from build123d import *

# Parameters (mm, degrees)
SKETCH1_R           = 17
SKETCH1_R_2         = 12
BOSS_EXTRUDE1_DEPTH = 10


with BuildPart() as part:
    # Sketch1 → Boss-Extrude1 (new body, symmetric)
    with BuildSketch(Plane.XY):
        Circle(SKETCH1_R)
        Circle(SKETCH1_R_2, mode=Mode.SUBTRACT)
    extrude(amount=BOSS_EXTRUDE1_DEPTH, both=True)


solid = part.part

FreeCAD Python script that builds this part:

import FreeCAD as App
import Part
import Sketcher
from FreeCAD import Vector
Q = App.Units.Quantity

doc = App.newDocument("Part")
body = doc.addObject("PartDesign::Body", "Body")

# Sketch on XY plane
sketch1 = body.newObject("Sketcher::SketchObject", "Sketch")
sketch1.AttachmentSupport = (doc.getObject("XY_Plane"), [""])
sketch1.MapMode = "FlatFace"
sketch1.addGeometry([
    Part.Circle(Vector(0, 0, 0), Vector(0, 0, 1), 17),
    Part.Circle(Vector(0, 0, 0), Vector(0, 0, 1), 12),
], False)
sketch1.addConstraint([
    Sketcher.Constraint("Coincident", 0, 3, -1, 1),
    Sketcher.Constraint("Coincident", 1, 3, -1, 1),
    Sketcher.Constraint("Diameter", 0, Q("34 mm")),
    Sketcher.Constraint("Diameter", 1, Q("24 mm")),
])
pad1 = body.newObject("PartDesign::Pad", "Pad")
pad1.Profile = sketch1
pad1.Length = 20
pad1.Midplane = True

doc.recompute()
